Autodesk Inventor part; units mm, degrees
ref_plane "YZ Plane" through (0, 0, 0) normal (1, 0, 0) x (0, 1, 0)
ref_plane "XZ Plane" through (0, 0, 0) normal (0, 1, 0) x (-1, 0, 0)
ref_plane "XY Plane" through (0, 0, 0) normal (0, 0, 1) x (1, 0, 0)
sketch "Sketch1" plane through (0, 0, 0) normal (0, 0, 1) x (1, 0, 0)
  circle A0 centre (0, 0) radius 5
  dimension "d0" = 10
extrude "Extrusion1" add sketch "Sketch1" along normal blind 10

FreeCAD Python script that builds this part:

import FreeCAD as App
import Part
import Sketcher

V = App.Vector
Q = App.Units.Quantity

doc = App.newDocument("Part")
body = doc.addObject("PartDesign::Body", "Body")

sketch1 = body.newObject("Sketcher::SketchObject", "Sketch")
sketch1.AttachmentSupport = (doc.getObject("XY_Plane"), [""])
sketch1.MapMode = "FlatFace"
sketch1.addGeometry(Part.Circle(V(0, 0, 0), V(0, 0, 1), 5), False)
sketch1.addConstraint([
    Sketcher.Constraint("Coincident", 0, 3, -1, 1),
    Sketcher.Constraint("Diameter", 0, Q("10 mm")),
])
pad1 = body.newObject("PartDesign::Pad", "Pad")
pad1.Profile = sketch1
pad1.Length = 10

doc.recompute()
